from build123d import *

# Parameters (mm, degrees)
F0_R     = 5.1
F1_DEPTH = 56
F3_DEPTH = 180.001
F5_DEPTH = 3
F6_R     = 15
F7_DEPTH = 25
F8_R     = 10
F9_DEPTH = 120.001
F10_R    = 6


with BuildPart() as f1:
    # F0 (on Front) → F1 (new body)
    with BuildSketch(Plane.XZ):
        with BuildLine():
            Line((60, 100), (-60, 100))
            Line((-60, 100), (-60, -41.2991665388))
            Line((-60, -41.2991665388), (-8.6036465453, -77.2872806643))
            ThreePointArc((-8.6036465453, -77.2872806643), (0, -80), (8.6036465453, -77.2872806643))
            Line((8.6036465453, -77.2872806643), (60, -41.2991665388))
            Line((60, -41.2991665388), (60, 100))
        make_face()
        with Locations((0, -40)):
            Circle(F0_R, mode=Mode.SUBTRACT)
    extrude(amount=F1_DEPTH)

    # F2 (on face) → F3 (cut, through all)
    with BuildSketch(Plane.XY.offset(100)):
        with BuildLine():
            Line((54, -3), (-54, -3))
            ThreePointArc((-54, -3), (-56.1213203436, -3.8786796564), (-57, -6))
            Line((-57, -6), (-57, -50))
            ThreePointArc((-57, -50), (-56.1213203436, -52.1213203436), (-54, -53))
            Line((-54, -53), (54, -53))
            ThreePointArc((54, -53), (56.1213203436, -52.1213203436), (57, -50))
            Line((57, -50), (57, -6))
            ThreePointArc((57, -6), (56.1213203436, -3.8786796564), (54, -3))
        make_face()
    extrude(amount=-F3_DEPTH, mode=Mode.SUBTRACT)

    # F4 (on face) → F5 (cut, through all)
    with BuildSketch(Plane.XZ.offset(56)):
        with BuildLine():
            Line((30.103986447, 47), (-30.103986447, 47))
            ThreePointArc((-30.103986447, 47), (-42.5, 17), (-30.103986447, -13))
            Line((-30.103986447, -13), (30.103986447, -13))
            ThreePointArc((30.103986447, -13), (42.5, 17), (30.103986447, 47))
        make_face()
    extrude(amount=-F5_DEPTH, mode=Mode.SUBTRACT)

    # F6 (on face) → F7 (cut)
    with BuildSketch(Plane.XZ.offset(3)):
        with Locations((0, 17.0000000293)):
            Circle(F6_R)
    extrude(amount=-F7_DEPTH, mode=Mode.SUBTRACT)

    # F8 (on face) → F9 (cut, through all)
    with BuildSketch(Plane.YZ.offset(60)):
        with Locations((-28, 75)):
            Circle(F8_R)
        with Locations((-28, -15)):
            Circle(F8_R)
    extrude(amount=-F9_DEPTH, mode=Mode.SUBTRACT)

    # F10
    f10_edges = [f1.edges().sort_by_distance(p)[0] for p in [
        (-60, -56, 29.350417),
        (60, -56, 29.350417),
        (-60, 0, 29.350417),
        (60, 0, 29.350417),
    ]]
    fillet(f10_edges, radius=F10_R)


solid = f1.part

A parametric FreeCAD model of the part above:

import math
import FreeCAD as App
import Part
import Sketcher

V = App.Vector
Q = App.Units.Quantity


def edges_at(feature, points):
    """Names of the edges that pass closest to the given points."""
    edges = feature.Shape.Edges
    near = lambda p: min(range(len(edges)), key=lambda i: edges[i].distToShape(Part.Vertex(*p))[0])
    return sorted({f"Edge{near(p) + 1}" for p in points})

doc = App.newDocument("Part")
params = doc.addObject("Spreadsheet::Sheet", "Params")
for row, (alias, value) in enumerate([
    ("sketch1_radius", "15 mm"),
    ("sketch1_diameter", "10.2 mm"),
    ("sketch1_width", "120 mm"),
    ("pad1_length", "56 mm"),
    ("sketch2_radius", "3 mm"),
    ("sketch2_width", "108 mm"),
    ("sketch2_height", "44 mm"),
    ("sketch3_radius", "42.5 mm"),
    ("pocket2_length", "3 mm"),
    ("sketch4_diameter", "30 mm"),
    ("pocket3_length", "25 mm"),
    ("sketch5_diameter", "20 mm"),
    ("fillet_radius", "6 mm"),
], start=1):
    params.set(f"A{row}", alias)
    params.set(f"B{row}", "=" + value)
    params.setAlias(f"B{row}", alias)

body = doc.addObject("PartDesign::Body", "Body")

# Sketch on XZ plane
sketch1 = doc.addObject("Sketcher::SketchObject", "Sketch")
body.addObject(sketch1)
sketch1.AttachmentSupport = (doc.XZ_Plane, [""])
sketch1.MapMode = "FlatFace"
sketch1.addGeometry([
    Part.LineSegment(V(60, 100, 0), V(-60, 100, 0)),  # 0
    Part.LineSegment(V(-60, 100, 0), V(-60, -41, 0)),  # 1
    Part.LineSegment(V(-60, -41, 0), V(-9, -77, 0)),  # 2
    Part.ArcOfCircle(Part.Circle(V(0, -65, 0), V(0, 0, 1), 15), math.radians(-125), math.radians(-55)),  # 3
    Part.LineSegment(V(9, -77, 0), V(60, -41, 0)),  # 4
    Part.LineSegment(V(60, -41, 0), V(60, 100, 0)),  # 5
    Part.Circle(V(0, -40, 0), V(0, 0, 1), 5),  # 6
], False)
sketch1.addConstraint([
    Sketcher.Constraint("Coincident", 0, 2, 1, 1),
    Sketcher.Constraint("Coincident", 1, 2, 2, 1),
    Sketcher.Constraint("Tangent", 2, 2, 3, 1),
    Sketcher.Constraint("Tangent", 3, 2, 4, 1),
    Sketcher.Constraint("Coincident", 4, 2, 5, 1),
    Sketcher.Constraint("Coincident", 5, 2, 0, 1),
    Sketcher.Constraint("Horizontal", 0),
    Sketcher.Constraint("Vertical", 1),
    Sketcher.Constraint("Vertical", 5),
    Sketcher.Constraint("Symmetric", 2, 2, 3, 2, -2),
    Sketcher.Constraint("PointOnObject", 6, 3, -2),
    Sketcher.Constraint("Horizontal", 1, 2, 4, 2),
    Sketcher.Constraint("Radius", 3, 15.0),
    Sketcher.Constraint("Diameter", 6, 10.2),
    Sketcher.Constraint("DistanceX", 0, 2, 0, 1, 120.0),
    Sketcher.Constraint("Angle", 2, Q("-35 deg")),
    Sketcher.Constraint("DistanceY", 3, 3, -1, 1, 65.0),
    Sketcher.Constraint("DistanceY", 6, 3, -1, 1, 40.0),
    Sketcher.Constraint("DistanceY", -1, 1, 0, 2, 100.0),
])
sketch1.setExpression("Constraints[12]", "Params.sketch1_radius")
sketch1.setExpression("Constraints[13]", "Params.sketch1_diameter")
sketch1.setExpression("Constraints[14]", "Params.sketch1_width")
pad1 = doc.addObject("PartDesign::Pad", "Pad")
body.addObject(pad1)
pad1.Profile = sketch1
pad1.setExpression("Length", "Params.pad1_length")

# Sketch on XY plane
sketch2 = doc.addObject("Sketcher::SketchObject", "Sketch001")
body.addObject(sketch2)
sketch2.AttachmentSupport = (doc.XY_Plane, [""])
sketch2.MapMode = "FlatFace"
sketch2.AttachmentOffset = App.Placement(V(0, 0, 100), App.Rotation())
sketch2.addGeometry([
    Part.LineSegment(V(54, -3, 0), V(-54, -3, 0)),  # 0
    Part.ArcOfCircle(Part.Circle(V(-54, -6, 0), V(0, 0, 1), 3), math.radians(90), math.radians(180)),  # 1
    Part.LineSegment(V(-57, -6, 0), V(-57, -50, 0)),  # 2
    Part.ArcOfCircle(Part.Circle(V(-54, -50, 0), V(0, 0, 1), 3), math.radians(180), math.radians(270)),  # 3
    Part.LineSegment(V(-54, -53, 0), V(54, -53, 0)),  # 4
    Part.ArcOfCircle(Part.Circle(V(54, -50, 0), V(0, 0, 1), 3), math.radians(-90), math.radians(0)),  # 5
    Part.LineSegment(V(57, -50, 0), V(57, -6, 0)),  # 6
    Part.ArcOfCircle(Part.Circle(V(54, -6, 0), V(0, 0, 1), 3), math.radians(0), math.radians(90)),  # 7
], False)
sketch2.addConstraint([
    Sketcher.Constraint("Tangent", 0, 2, 1, 1),
    Sketcher.Constraint("Tangent", 1, 2, 2, 1),
    Sketcher.Constraint("Tangent", 2, 2, 3, 1),
    Sketcher.Constraint("Tangent", 3, 2, 4, 1),
    Sketcher.Constraint("Tangent", 4, 2, 5, 1),
    Sketcher.Constraint("Tangent", 5, 2, 6, 1),
    Sketcher.Constraint("Tangent", 6, 2, 7, 1),
    Sketcher.Constraint("Tangent", 7, 2, 0, 1),
    Sketcher.Constraint("Horizontal", 0),
    Sketcher.Constraint("Vertical", 2),
    Sketcher.Constraint("Horizontal", 4),
    Sketcher.Constraint("Vertical", 6),
    Sketcher.Constraint("Equal", 1, 3),
    Sketcher.Constraint("Equal", 3, 5),
    Sketcher.Constraint("Equal", 5, 7),
    Sketcher.Constraint("Radius", 1, 3.0),
    Sketcher.Constraint("DistanceX", 0, 2, 0, 1, 108.0),
    Sketcher.Constraint("DistanceY", 2, 2, 2, 1, 44.0),
    Sketcher.Constraint("DistanceX", 1, 3, -1, 1, 54.0),
    Sketcher.Constraint("DistanceY", 1, 3, -1, 1, 6.0),
])
sketch2.setExpression("Constraints[15]", "Params.sketch2_radius")
sketch2.setExpression("Constraints[16]", "Params.sketch2_width")
sketch2.setExpression("Constraints[17]", "Params.sketch2_height")
pocket1 = doc.addObject("PartDesign::Pocket", "Pocket")
body.addObject(pocket1)
pocket1.Profile = sketch2
pocket1.Type = "ThroughAll"

# Sketch on XZ plane
sketch3 = doc.addObject("Sketcher::SketchObject", "Sketch002")
body.addObject(sketch3)
sketch3.AttachmentSupport = (doc.XZ_Plane, [""])
sketch3.MapMode = "FlatFace"
sketch3.AttachmentOffset = App.Placement(V(0, 0, 56), App.Rotation())
sketch3.addGeometry([
    Part.LineSegment(V(30, 47, 0), V(-30, 47, 0)),
    Part.ArcOfCircle(Part.Circle(V(0, 17, 0), V(0, 0, 1), 42), math.radians(135), math.radians(225)),
    Part.LineSegment(V(-30, -13, 0), V(30, -13, 0)),
    Part.ArcOfCircle(Part.Circle(V(0, 17, 0), V(0, 0, 1), 42), math.radians(-45), math.radians(45)),
], False)
sketch3.addConstraint([
    Sketcher.Constraint("Coincident", 0, 2, 1, 1),
    Sketcher.Constraint("Coincident", 1, 2, 2, 1),
    Sketcher.Constraint("Coincident", 2, 2, 3, 1),
    Sketcher.Constraint("Coincident", 3, 2, 0, 1),
    Sketcher.Constraint("Horizontal", 0),
    Sketcher.Constraint("Horizontal", 2),
    Sketcher.Constraint("Coincident", 3, 3, 1, 3),
    Sketcher.Constraint("Equal", 1, 3),
    Sketcher.Constraint("PointOnObject", 1, 3, -2),
    Sketcher.Constraint("Vertical", 0, 2, 1, 2),
    Sketcher.Constraint("Radius", 1, 42.5),
    Sketcher.Constraint("DistanceY", -1, 1, 1, 3, 17.0),
    Sketcher.Constraint("DistanceY", -1, 1, 0, 2, 47.0),
])
sketch3.setExpression("Constraints[10]", "Params.sketch3_radius")
pocket2 = doc.addObject("PartDesign::Pocket", "Pocket001")
body.addObject(pocket2)
pocket2.Profile = sketch3
pocket2.setExpression("Length", "Params.pocket2_length")

# Sketch on XZ plane
sketch4 = doc.addObject("Sketcher::SketchObject", "Sketch003")
body.addObject(sketch4)
sketch4.AttachmentSupport = (doc.XZ_Plane, [""])
sketch4.MapMode = "FlatFace"
sketch4.AttachmentOffset = App.Placement(V(0, 0, 3), App.Rotation())
sketch4.addGeometry(Part.Circle(V(0, 17, 0), V(0, 0, 1), 15), False)
sketch4.addConstraint([
    Sketcher.Constraint("PointOnObject", 0, 3, -2),
    Sketcher.Constraint("Diameter", 0, 30.0),
    Sketcher.Constraint("DistanceY", -1, 1, 0, 3, 17.0),
])
sketch4.setExpression("Constraints[1]", "Params.sketch4_diameter")
pocket3 = doc.addObject("PartDesign::Pocket", "Pocket002")
body.addObject(pocket3)
pocket3.Profile = sketch4
pocket3.setExpression("Length", "Params.pocket3_length")

# Sketch on YZ plane
sketch5 = doc.addObject("Sketcher::SketchObject", "Sketch004")
body.addObject(sketch5)
sketch5.AttachmentSupport = (doc.YZ_Plane, [""])
sketch5.MapMode = "FlatFace"
sketch5.AttachmentOffset = App.Placement(V(0, 0, 60), App.Rotation())
sketch5.addGeometry([
    Part.Circle(V(-28, 75, 0), V(0, 0, 1), 10),
    Part.Circle(V(-28, -15, 0), V(0, 0, 1), 10),
], False)
sketch5.addConstraint([
    Sketcher.Constraint("Equal", 0, 1),
    Sketcher.Constraint("Vertical", 0, 3, 1, 3),
    Sketcher.Constraint("Diameter", 0, 20.0),
    Sketcher.Constraint("DistanceX", 0, 3, -1, 1, 28.0),
    Sketcher.Constraint("DistanceY", -1, 1, 0, 3, 75.0),
    Sketcher.Constraint("DistanceY", 1, 3, -1, 1, 15.0),
])
sketch5.setExpression("Constraints[2]", "Params.sketch5_diameter")
pocket4 = doc.addObject("PartDesign::Pocket", "Pocket003")
body.addObject(pocket4)
pocket4.Profile = sketch5
pocket4.Type = "ThroughAll"
doc.recompute()

fillet = doc.addObject("PartDesign::Fillet", "Fillet")
body.addObject(fillet)
fillet.Base = (pocket4, edges_at(pocket4, [
    (-60, -56, 29.35),
    (60, -56, 29.35),
    (-60, 0, 29.35),
    (60, 0, 29.35),
]))
fillet.setExpression("Radius", "Params.fillet_radius")

doc.recompute()
